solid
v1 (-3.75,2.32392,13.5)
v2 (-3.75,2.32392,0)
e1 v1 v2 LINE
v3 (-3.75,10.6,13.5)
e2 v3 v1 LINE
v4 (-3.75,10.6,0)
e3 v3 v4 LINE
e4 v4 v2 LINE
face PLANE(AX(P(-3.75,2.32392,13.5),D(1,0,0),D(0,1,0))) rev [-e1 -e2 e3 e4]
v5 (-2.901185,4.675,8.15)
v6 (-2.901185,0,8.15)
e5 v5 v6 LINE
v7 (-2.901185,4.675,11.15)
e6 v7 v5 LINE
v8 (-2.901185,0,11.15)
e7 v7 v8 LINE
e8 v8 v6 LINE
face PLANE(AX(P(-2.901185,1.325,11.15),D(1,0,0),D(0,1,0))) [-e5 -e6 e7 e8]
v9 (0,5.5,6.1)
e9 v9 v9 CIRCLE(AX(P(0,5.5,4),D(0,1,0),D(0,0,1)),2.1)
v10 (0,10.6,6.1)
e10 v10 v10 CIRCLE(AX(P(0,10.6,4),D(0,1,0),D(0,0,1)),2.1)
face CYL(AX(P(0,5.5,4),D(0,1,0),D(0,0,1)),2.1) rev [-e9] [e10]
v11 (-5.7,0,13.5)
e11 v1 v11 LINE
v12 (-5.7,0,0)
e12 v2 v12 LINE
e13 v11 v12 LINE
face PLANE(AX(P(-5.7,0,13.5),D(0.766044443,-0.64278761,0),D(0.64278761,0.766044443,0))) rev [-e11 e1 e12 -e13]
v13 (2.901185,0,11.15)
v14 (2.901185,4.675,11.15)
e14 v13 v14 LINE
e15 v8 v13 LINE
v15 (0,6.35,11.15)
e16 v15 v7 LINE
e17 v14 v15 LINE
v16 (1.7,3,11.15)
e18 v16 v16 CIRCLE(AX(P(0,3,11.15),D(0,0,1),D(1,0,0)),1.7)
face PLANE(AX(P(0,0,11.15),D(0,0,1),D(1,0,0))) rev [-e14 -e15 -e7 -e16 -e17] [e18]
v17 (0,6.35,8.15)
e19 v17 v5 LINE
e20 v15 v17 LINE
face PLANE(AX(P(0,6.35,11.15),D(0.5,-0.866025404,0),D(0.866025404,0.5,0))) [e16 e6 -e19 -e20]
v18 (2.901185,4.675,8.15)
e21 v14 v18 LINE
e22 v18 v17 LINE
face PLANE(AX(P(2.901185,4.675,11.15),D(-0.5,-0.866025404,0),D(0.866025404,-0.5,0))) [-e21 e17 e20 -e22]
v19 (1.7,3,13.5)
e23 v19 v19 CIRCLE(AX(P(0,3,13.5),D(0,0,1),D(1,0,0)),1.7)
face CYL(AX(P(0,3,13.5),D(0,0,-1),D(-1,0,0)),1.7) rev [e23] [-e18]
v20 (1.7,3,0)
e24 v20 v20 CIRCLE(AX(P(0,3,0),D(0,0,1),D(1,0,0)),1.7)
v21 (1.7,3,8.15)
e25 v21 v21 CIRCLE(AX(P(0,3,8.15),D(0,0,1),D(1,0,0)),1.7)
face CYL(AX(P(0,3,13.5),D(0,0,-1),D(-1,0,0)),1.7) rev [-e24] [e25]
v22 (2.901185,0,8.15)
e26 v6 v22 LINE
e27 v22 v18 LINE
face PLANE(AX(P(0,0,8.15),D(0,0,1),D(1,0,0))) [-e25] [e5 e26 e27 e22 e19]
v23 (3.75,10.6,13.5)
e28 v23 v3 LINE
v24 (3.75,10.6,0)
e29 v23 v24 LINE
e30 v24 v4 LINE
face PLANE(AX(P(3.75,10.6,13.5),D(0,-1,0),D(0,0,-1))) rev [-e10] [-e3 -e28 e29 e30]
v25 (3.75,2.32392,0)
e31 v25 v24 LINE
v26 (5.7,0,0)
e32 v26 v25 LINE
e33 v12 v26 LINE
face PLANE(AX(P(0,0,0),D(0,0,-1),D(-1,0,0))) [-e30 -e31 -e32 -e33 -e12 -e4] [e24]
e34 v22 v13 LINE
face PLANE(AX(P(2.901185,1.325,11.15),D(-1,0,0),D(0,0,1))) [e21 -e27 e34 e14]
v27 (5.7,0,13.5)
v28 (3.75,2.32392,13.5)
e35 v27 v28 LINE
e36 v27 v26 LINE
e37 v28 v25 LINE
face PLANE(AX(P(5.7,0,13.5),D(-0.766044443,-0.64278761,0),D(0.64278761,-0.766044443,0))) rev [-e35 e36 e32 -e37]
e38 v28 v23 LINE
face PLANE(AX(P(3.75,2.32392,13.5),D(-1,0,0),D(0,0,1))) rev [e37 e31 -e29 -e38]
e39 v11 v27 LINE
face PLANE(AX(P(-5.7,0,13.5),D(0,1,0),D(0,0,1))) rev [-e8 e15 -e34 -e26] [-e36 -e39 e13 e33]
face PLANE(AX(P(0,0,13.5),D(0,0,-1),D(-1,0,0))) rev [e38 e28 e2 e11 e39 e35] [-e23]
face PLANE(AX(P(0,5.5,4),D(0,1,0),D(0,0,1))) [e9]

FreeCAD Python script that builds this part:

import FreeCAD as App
import Part
import Sketcher

V = App.Vector
Q = App.Units.Quantity

doc = App.newDocument("Part")
body = doc.addObject("PartDesign::Body", "Body")

sketch1 = body.newObject("Sketcher::SketchObject", "Sketch")
sketch1.AttachmentSupport = (doc.getObject("XY_Plane"), [""])
sketch1.MapMode = "FlatFace"
sketch1.addGeometry([
    Part.LineSegment(V(-5.7, 0, 0), V(5.7, 0, 0)),
    Part.LineSegment(V(5.7, 0, 0), V(3.8, 2.3, 0)),
    Part.LineSegment(V(3.8, 2.3, 0), V(3.8, 10.6, 0)),
    Part.LineSegment(V(3.8, 10.6, 0), V(-3.8, 10.6, 0)),
    Part.LineSegment(V(-3.8, 10.6, 0), V(-3.8, 2.3, 0)),
    Part.LineSegment(V(-3.8, 2.3, 0), V(-5.7, 0, 0)),
    Part.Circle(V(0, 3, 0), V(0, 0, 1), 1.7),
], False)
sketch1.addConstraint([
    Sketcher.Constraint("Coincident", 0, 2, 1, 1),
    Sketcher.Constraint("Coincident", 1, 2, 2, 1),
    Sketcher.Constraint("Coincident", 2, 2, 3, 1),
    Sketcher.Constraint("Coincident", 3, 2, 4, 1),
    Sketcher.Constraint("Coincident", 4, 2, 5, 1),
    Sketcher.Constraint("Coincident", 5, 2, 0, 1),
    Sketcher.Constraint("Horizontal", 0),
    Sketcher.Constraint("Vertical", 2),
    Sketcher.Constraint("Horizontal", 3),
    Sketcher.Constraint("Vertical", 4),
    Sketcher.Constraint("Symmetric", 0, 2, 5, 2, -1, 1),
    Sketcher.Constraint("Symmetric", 1, 2, 4, 2, -2),
    Sketcher.Constraint("PointOnObject", 6, 3, -2),
    Sketcher.Constraint("Diameter", 6, 3.4),
    Sketcher.Constraint("Angle", 1, Q("130 deg")),
    Sketcher.Constraint("DistanceX", 0, 1, 0, 2, 11.4),
    Sketcher.Constraint("DistanceX", 3, 2, 3, 1, 7.5),
    Sketcher.Constraint("DistanceY", -1, 1, 6, 3, 3.0),
    Sketcher.Constraint("DistanceY", -1, 1, 2, 2, 10.6),
])
pad1 = body.newObject("PartDesign::Pad", "Pad")
pad1.Profile = sketch1
pad1.Length = 13.5

sketch2 = body.newObject("Sketcher::SketchObject", "Sketch001")
sketch2.AttachmentSupport = (doc.getObject("XZ_Plane"), [""])
sketch2.MapMode = "FlatFace"
sketch2.AttachmentOffset = App.Placement(V(0, 0, -10.6), App.Rotation())
sketch2.addGeometry(Part.Circle(V(0, 4, 0), V(0, 0, 1), 2.1), False)
sketch2.addConstraint([
    Sketcher.Constraint("PointOnObject", 0, 3, -2),
    Sketcher.Constraint("Diameter", 0, 4.2),
    Sketcher.Constraint("DistanceY", -1, 1, 0, 3, 4.0),
])
pocket1 = body.newObject("PartDesign::Pocket", "Pocket")
pocket1.Profile = sketch2
pocket1.Length = 5.1
pocket1.Reversed = True

sketch3 = body.newObject("Sketcher::SketchObject", "Sketch002")
sketch3.AttachmentSupport = (doc.getObject("XY_Plane"), [""])
sketch3.MapMode = "FlatFace"
sketch3.AttachmentOffset = App.Placement(V(0, 0, 9.65), App.Rotation())
sketch3.addGeometry([
    Part.LineSegment(V(-2.9, -5.3, 0), V(2.9, -5.3, 0)),
    Part.LineSegment(V(2.9, -5.3, 0), V(2.9, 4.7, 0)),
    Part.LineSegment(V(2.9, 4.7, 0), V(0, 6.3, 0)),
    Part.LineSegment(V(0, 6.3, 0), V(-2.9, 4.7, 0)),
    Part.LineSegment(V(-2.9, 4.7, 0), V(-2.9, -5.3, 0)),
], False)
sketch3.addConstraint([
    Sketcher.Constraint("Coincident", 0, 2, 1, 1),
    Sketcher.Constraint("Coincident", 1, 2, 2, 1),
    Sketcher.Constraint("Coincident", 2, 2, 3, 1),
    Sketcher.Constraint("Coincident", 3, 2, 4, 1),
    Sketcher.Constraint("Coincident", 4, 2, 0, 1),
    Sketcher.Constraint("Horizontal", 0),
    Sketcher.Constraint("Vertical", 1),
    Sketcher.Constraint("Vertical", 4),
    Sketcher.Constraint("Symmetric", 1, 2, 3, 2, -2),
    Sketcher.Constraint("PointOnObject", 2, 2, -2),
    Sketcher.Constraint("DistanceY", 1, 1, 1, 2, 10.0),
    Sketcher.Constraint("Angle", 2, Q("150 deg")),
    Sketcher.Constraint("Distance", 2, 3.35),
    Sketcher.Constraint("DistanceY", -1, 1, 2, 2, 6.35),
])
pocket2 = body.newObject("PartDesign::Pocket", "Pocket001")
pocket2.Profile = sketch3
pocket2.Type = "TwoLengths"
pocket2.Length = 1.5
pocket2.Length2 = 1.5
pocket2.Reversed = True

doc.recompute()
